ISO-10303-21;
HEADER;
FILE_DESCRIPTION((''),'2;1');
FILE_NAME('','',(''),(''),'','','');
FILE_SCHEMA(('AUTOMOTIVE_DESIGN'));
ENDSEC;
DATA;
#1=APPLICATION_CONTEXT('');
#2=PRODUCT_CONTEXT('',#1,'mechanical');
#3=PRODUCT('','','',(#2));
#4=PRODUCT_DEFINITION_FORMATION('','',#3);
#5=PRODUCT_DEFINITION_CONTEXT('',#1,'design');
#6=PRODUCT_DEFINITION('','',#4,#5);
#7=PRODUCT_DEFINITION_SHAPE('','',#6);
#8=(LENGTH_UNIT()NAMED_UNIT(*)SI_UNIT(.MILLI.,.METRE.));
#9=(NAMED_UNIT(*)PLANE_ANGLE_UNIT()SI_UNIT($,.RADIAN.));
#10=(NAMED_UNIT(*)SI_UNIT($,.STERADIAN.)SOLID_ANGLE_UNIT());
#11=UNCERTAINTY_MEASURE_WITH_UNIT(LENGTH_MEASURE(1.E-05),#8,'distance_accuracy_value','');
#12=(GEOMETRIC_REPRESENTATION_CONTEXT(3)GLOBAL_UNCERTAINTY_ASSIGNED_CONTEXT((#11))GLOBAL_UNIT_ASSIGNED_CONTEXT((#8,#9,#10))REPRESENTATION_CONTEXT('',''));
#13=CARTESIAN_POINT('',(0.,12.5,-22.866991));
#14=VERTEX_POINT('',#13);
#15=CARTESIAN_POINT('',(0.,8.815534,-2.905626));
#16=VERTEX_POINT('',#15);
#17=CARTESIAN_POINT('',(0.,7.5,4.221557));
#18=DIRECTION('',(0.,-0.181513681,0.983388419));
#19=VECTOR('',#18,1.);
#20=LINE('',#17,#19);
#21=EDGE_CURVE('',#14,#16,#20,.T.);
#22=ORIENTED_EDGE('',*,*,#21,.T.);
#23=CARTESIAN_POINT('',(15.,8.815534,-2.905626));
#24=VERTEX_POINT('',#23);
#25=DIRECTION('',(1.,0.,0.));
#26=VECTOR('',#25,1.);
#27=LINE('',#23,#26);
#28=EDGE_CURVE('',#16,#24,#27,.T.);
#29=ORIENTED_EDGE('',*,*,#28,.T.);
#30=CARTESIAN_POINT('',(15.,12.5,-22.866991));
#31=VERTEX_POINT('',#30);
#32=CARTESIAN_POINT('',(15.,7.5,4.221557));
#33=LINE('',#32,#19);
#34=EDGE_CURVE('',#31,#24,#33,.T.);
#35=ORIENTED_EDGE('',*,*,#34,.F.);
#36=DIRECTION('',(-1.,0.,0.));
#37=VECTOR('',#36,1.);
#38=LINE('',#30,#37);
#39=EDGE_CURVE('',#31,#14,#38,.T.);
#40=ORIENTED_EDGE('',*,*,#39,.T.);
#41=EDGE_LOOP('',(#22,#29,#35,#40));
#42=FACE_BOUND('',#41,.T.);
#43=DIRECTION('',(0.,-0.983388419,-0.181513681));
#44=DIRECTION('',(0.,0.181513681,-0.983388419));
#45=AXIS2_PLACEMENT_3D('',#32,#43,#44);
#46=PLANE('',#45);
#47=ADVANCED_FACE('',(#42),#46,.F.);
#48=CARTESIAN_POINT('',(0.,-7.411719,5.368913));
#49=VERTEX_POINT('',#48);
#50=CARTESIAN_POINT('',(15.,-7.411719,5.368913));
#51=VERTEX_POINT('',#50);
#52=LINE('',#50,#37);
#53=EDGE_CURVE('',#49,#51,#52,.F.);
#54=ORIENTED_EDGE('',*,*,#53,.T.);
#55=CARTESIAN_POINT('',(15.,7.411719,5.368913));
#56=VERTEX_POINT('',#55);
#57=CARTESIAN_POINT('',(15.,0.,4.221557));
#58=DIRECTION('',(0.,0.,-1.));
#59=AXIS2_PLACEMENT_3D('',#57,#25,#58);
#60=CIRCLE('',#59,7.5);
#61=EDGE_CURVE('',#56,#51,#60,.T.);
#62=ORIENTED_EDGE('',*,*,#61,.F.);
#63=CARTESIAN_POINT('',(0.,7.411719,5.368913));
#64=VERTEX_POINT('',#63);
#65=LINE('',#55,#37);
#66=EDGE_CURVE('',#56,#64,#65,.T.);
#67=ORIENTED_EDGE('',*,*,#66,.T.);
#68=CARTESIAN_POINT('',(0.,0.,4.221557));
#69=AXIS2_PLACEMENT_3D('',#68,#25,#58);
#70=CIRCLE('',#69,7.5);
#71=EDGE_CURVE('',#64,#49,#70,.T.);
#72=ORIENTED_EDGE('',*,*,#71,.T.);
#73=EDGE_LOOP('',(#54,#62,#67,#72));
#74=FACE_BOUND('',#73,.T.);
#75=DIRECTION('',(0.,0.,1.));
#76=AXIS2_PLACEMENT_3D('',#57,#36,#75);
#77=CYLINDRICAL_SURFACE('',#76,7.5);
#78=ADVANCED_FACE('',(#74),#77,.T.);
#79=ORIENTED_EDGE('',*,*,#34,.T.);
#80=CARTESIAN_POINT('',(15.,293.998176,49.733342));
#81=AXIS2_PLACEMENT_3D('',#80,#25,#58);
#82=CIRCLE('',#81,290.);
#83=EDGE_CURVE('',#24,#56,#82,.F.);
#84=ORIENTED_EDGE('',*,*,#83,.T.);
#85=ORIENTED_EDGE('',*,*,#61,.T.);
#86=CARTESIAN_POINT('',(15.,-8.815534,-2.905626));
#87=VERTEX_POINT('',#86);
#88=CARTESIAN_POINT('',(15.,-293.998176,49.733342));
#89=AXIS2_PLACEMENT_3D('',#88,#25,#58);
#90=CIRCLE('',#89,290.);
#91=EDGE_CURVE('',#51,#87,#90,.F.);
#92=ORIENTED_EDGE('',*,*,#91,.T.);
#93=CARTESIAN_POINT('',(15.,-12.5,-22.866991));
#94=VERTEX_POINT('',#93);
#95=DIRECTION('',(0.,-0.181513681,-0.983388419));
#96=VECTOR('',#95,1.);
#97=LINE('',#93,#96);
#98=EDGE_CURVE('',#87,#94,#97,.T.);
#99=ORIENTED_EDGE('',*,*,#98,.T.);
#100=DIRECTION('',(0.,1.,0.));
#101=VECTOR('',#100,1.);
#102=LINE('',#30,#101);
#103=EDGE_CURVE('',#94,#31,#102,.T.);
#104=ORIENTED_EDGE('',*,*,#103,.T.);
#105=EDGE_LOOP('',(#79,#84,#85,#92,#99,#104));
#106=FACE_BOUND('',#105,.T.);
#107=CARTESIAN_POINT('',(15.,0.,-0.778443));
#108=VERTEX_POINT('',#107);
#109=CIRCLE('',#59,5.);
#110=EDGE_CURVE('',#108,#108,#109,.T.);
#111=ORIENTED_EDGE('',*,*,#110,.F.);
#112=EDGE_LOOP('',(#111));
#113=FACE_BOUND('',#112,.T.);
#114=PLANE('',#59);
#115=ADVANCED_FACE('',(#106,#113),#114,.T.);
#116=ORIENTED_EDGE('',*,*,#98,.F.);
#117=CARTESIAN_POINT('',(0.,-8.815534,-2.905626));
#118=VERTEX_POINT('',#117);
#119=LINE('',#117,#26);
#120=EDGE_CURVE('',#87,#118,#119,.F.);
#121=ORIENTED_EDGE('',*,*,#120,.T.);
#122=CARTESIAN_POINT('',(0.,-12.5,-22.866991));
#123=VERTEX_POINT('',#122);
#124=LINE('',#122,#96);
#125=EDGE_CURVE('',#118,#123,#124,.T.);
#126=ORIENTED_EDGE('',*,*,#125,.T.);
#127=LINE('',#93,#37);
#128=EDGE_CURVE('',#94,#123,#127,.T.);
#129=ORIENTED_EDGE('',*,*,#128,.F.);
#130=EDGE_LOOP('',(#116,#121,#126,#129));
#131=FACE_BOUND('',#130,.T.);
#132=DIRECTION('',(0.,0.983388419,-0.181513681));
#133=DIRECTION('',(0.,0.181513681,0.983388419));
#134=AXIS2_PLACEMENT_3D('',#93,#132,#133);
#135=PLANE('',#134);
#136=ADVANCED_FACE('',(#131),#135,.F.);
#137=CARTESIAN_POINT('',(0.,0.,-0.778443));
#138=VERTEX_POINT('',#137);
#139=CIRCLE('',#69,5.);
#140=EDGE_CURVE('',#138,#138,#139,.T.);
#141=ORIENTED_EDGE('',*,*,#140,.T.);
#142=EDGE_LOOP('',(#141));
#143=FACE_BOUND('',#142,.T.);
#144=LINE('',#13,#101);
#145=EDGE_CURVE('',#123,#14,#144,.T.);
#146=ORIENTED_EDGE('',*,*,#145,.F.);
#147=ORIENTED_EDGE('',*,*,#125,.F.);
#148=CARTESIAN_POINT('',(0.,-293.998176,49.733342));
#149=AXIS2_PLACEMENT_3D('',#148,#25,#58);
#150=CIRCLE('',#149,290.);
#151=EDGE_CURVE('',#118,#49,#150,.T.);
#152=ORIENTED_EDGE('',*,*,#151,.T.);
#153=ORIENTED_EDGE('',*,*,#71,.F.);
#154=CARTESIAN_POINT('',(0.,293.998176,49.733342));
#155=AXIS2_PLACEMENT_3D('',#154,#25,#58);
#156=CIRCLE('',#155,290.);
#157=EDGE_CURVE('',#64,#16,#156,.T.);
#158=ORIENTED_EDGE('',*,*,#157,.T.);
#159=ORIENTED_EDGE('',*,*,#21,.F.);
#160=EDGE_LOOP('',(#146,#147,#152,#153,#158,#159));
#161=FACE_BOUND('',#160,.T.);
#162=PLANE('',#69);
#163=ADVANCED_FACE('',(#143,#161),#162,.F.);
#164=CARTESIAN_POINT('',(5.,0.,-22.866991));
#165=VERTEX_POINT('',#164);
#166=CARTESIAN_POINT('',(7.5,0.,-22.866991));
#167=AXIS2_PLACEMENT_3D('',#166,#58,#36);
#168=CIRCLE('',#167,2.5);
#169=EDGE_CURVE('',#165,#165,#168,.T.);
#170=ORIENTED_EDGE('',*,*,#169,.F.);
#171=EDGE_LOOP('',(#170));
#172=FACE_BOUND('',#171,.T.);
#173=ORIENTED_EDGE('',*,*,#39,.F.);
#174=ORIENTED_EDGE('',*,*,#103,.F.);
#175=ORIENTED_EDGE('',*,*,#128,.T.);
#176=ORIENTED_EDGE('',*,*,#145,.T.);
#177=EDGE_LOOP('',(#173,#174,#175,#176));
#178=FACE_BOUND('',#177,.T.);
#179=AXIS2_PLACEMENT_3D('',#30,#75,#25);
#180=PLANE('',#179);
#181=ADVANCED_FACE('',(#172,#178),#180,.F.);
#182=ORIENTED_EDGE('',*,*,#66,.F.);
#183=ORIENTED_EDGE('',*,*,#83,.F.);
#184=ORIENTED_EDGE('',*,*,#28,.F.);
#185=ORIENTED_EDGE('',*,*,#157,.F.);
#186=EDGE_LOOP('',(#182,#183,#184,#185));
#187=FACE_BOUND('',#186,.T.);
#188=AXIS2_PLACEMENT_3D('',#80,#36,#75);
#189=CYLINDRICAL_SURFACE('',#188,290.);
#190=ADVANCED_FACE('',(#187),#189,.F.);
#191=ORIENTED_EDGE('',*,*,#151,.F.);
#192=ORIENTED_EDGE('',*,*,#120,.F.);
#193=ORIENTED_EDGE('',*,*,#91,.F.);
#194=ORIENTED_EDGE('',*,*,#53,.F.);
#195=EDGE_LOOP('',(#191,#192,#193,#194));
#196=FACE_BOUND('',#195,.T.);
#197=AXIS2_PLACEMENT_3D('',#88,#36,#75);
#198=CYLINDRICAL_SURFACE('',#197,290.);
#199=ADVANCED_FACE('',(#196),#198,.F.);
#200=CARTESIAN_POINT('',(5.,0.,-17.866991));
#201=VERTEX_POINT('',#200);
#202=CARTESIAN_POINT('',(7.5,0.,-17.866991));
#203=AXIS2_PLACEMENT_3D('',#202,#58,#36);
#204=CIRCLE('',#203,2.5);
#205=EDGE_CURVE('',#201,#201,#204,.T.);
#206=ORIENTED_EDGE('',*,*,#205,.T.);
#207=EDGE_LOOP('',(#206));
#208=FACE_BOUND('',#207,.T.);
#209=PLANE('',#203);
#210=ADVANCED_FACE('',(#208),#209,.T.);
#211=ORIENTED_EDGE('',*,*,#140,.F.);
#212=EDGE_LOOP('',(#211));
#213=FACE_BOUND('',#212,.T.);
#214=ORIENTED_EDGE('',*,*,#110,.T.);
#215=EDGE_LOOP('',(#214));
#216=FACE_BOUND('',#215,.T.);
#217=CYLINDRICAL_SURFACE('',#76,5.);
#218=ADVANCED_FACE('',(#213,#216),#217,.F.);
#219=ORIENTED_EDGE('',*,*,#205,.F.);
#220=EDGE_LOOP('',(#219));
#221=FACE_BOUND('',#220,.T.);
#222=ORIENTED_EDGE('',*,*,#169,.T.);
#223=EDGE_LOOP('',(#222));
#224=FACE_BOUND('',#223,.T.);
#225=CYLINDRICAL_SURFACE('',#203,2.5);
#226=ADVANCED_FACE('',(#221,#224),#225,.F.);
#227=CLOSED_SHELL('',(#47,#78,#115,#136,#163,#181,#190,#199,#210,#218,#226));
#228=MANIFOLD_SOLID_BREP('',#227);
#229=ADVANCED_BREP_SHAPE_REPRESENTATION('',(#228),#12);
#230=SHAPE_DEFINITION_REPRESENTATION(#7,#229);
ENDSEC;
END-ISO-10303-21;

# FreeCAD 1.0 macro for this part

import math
import FreeCAD as App
import Part
import Sketcher

V = App.Vector


def edges_at(feature, points):
    """Names of the edges that pass closest to the given points."""
    edges = feature.Shape.Edges
    near = lambda p: min(range(len(edges)), key=lambda i: edges[i].distToShape(Part.Vertex(*p))[0])
    return sorted({f"Edge{near(p) + 1}" for p in points})

doc = App.newDocument("Part")
body = doc.addObject("PartDesign::Body", "Body")

# Sketch on YZ plane
sketch1 = doc.addObject("Sketcher::SketchObject", "Sketch")
body.addObject(sketch1)
sketch1.AttachmentSupport = (doc.YZ_Plane, [""])
sketch1.MapMode = "FlatFace"
sketch1.addGeometry(Part.LineSegment(V(12, -23, 0), V(8, 4, 0)), False)
sketch1.addGeometry(Part.ArcOfCircle(Part.Circle(V(0, 4, 0), V(0, 0, 1), 8), math.radians(0), math.radians(180)), False)
sketch1.addGeometry(Part.LineSegment(V(-8, 4, 0), V(-12, -23, 0)), False)
sketch1.addGeometry(Part.LineSegment(V(-12, -23, 0), V(12, -23, 0)), False)
sketch1.addGeometry(Part.Circle(V(0, 4, 0), V(0, 0, 1), 5), False)
sketch1.addConstraint(Sketcher.Constraint("Coincident", 0, 2, 1, 1))
sketch1.addConstraint(Sketcher.Constraint("Coincident", 1, 2, 2, 1))
sketch1.addConstraint(Sketcher.Constraint("Coincident", 2, 2, 3, 1))
sketch1.addConstraint(Sketcher.Constraint("Coincident", 3, 2, 0, 1))
sketch1.addConstraint(Sketcher.Constraint("Horizontal", 3))
sketch1.addConstraint(Sketcher.Constraint("Coincident", 4, 3, 1, 3))
sketch1.addConstraint(Sketcher.Constraint("Symmetric", 0, 2, 1, 2, -2))
sketch1.addConstraint(Sketcher.Constraint("Horizontal", 4, 3, 0, 2))
sketch1.addConstraint(Sketcher.Constraint("Equal", 0, 2))
sketch1.addConstraint(Sketcher.Constraint("Diameter", 4, 10.0))
sketch1.addConstraint(Sketcher.Constraint("Radius", 1, 7.5))
sketch1.addConstraint(Sketcher.Constraint("DistanceX", 3, 1, 3, 2, 25.0))
sketch1.addConstraint(Sketcher.Constraint("DistanceY", 2, 2, -1, 1, 22.866991))
sketch1.addConstraint(Sketcher.Constraint("DistanceY", 2, 2, 1, 2, 27.088548))
pad1 = doc.addObject("PartDesign::Pad", "Pad")
body.addObject(pad1)
pad1.Profile = sketch1
pad1.Length = 15
doc.recompute()

fillet = doc.addObject("PartDesign::Fillet", "Fillet")
body.addObject(fillet)
fillet.Base = (pad1, edges_at(pad1, [(7.5, -7.5, 4.222), (7.5, 7.5, 4.222)]))
fillet.Radius = 290

# Sketch on XY plane
sketch2 = doc.addObject("Sketcher::SketchObject", "Sketch001")
body.addObject(sketch2)
sketch2.AttachmentSupport = (doc.XY_Plane, [""])
sketch2.MapMode = "FlatFace"
sketch2.AttachmentOffset = App.Placement(V(0, 0, -22.866991), App.Rotation())
sketch2.addGeometry(Part.Circle(V(7.5, 0, 0), V(0, 0, 1), 2.5), False)
sketch2.addConstraint(Sketcher.Constraint("PointOnObject", 0, 3, -1))
sketch2.addConstraint(Sketcher.Constraint("Diameter", 0, 5.0))
sketch2.addConstraint(Sketcher.Constraint("DistanceX", -1, 1, 0, 3, 7.5))
pocket1 = doc.addObject("PartDesign::Pocket", "Pocket")
body.addObject(pocket1)
pocket1.Profile = sketch2
pocket1.Length = 5
pocket1.Reversed = True

doc.recompute()
